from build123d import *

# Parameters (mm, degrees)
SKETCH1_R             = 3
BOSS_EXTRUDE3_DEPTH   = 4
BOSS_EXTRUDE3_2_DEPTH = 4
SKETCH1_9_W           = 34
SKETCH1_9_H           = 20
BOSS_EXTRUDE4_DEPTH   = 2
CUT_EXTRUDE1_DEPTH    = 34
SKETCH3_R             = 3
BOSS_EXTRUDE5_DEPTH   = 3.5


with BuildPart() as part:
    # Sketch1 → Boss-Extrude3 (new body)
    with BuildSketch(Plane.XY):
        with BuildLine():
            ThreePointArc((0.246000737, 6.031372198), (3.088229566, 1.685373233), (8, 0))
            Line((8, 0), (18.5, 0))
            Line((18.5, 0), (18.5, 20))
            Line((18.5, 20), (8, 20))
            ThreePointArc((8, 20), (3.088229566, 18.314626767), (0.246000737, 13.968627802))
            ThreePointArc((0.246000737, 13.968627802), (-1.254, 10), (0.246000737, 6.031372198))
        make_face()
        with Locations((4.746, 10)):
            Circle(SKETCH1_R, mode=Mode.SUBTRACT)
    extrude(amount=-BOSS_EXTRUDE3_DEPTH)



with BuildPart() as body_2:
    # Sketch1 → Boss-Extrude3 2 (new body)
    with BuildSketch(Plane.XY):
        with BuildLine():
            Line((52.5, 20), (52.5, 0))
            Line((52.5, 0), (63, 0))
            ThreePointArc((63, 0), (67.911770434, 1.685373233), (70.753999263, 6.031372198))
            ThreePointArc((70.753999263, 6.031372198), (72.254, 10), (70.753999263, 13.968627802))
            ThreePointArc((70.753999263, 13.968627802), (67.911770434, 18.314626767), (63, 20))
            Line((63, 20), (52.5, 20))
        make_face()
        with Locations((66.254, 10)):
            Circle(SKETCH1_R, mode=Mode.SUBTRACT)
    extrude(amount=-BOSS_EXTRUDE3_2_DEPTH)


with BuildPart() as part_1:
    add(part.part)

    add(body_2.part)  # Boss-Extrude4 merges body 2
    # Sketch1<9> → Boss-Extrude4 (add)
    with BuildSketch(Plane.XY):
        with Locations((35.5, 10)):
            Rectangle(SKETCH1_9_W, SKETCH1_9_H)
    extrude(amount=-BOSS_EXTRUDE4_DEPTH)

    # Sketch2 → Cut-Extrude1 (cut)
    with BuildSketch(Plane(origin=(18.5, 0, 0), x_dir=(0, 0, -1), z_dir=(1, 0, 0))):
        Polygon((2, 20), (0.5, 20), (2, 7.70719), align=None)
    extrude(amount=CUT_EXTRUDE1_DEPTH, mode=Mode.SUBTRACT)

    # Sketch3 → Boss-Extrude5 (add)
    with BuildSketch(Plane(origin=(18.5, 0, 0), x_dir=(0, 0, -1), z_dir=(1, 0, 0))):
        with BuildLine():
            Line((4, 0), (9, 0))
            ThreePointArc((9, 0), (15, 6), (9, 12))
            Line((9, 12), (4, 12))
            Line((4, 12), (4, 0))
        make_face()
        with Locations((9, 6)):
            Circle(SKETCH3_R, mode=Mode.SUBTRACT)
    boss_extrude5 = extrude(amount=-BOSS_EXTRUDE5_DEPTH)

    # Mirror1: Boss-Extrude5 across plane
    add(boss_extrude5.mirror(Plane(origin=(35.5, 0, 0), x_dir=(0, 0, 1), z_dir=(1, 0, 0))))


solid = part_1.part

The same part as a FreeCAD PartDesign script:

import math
import FreeCAD as App
import Part
import Sketcher

V = App.Vector
Q = App.Units.Quantity

doc = App.newDocument("Part")
params = doc.addObject("Spreadsheet::Sheet", "Params")
for row, (alias, value) in enumerate([
    ("sketch1_diameter", "6 mm"),
    ("sketch1_radius", "8 mm"),
    ("sketch1_radius2", "6 mm"),
    ("sketch1_height", "20 mm"),
    ("sketch1_width", "10.5 mm"),
    ("pad1_length", "4 mm"),
    ("sketch2_diameter", "6 mm"),
    ("sketch2_radius", "8 mm"),
    ("sketch2_radius2", "6 mm"),
    ("sketch2_height", "20 mm"),
    ("sketch2_width", "10.5 mm"),
    ("pad2_length", "4 mm"),
    ("sketch3_width", "34 mm"),
    ("sketch3_height", "20 mm"),
    ("pad3_length", "2 mm"),
    ("sketch4_height", "1.5 mm"),
    ("pocket1_length", "34 mm"),
    ("sketch5_diameter", "6 mm"),
    ("sketch5_radius", "6 mm"),
    ("sketch5_height", "5 mm"),
    ("pad4_length", "3.5 mm"),
], start=1):
    params.set(f"A{row}", alias)
    params.set(f"B{row}", "=" + value)
    params.setAlias(f"B{row}", alias)

body = doc.addObject("PartDesign::Body", "Body")

# Sketch on XY plane
sketch1 = doc.addObject("Sketcher::SketchObject", "Sketch")
body.addObject(sketch1)
sketch1.AttachmentSupport = (doc.XY_Plane, [""])
sketch1.MapMode = "FlatFace"
sketch1.addGeometry([
    Part.ArcOfCircle(Part.Circle(V(8, 8, 0), V(0, 0, 1), 8), math.radians(-166), math.radians(-90)),  # 0
    Part.LineSegment(V(8, 0, 0), V(18.5, 0, 0)),  # 1
    Part.LineSegment(V(18.5, 0, 0), V(18.5, 20, 0)),  # 2
    Part.LineSegment(V(18.5, 20, 0), V(8, 20, 0)),  # 3
    Part.ArcOfCircle(Part.Circle(V(8, 12, 0), V(0, 0, 1), 8), math.radians(90), math.radians(166)),  # 4
    Part.ArcOfCircle(Part.Circle(V(4.7, 10, 0), V(0, 0, 1), 6), math.radians(139), math.radians(221)),  # 5
    Part.Circle(V(4.7, 10, 0), V(0, 0, 1), 3),  # 6
], False)
sketch1.addConstraint([
    Sketcher.Constraint("Tangent", 0, 2, 1, 1),
    Sketcher.Constraint("Coincident", 1, 2, 2, 1),
    Sketcher.Constraint("Coincident", 2, 2, 3, 1),
    Sketcher.Constraint("Tangent", 3, 2, 4, 1),
    Sketcher.Constraint("Coincident", 4, 2, 5, 1),
    Sketcher.Constraint("Coincident", 5, 2, 0, 1),
    Sketcher.Constraint("Horizontal", 1),
    Sketcher.Constraint("Vertical", 2),
    Sketcher.Constraint("Horizontal", 3),
    Sketcher.Constraint("Coincident", 6, 3, 5, 3),
    Sketcher.Constraint("Equal", 0, 4),
    Sketcher.Constraint("PointOnObject", 0, 2, -1),
    Sketcher.Constraint("Vertical", 0, 3, 4, 3),
    Sketcher.Constraint("Vertical", 4, 2, 5, 2),
    Sketcher.Constraint("Diameter", 6, Q("6 mm")),
    Sketcher.Constraint("Radius", 0, Q("8 mm")),
    Sketcher.Constraint("Radius", 5, Q("6 mm")),
    Sketcher.Constraint("DistanceY", 2, 1, 2, 2, Q("20 mm")),
    Sketcher.Constraint("DistanceX", 1, 1, 1, 2, Q("10.5 mm")),
    Sketcher.Constraint("DistanceX", -1, 1, 0, 3, Q("8 mm")),
    Sketcher.Constraint("DistanceX", 4, 2, 5, 3, Q("4.499999 mm")),
])
sketch1.setExpression("Constraints[14]", "Params.sketch1_diameter")
sketch1.setExpression("Constraints[15]", "Params.sketch1_radius")
sketch1.setExpression("Constraints[16]", "Params.sketch1_radius2")
sketch1.setExpression("Constraints[17]", "Params.sketch1_height")
sketch1.setExpression("Constraints[18]", "Params.sketch1_width")
pad1 = doc.addObject("PartDesign::Pad", "Pad")
body.addObject(pad1)
pad1.Profile = sketch1
pad1.setExpression("Length", "Params.pad1_length")
pad1.Reversed = True
body2 = doc.addObject("PartDesign::Body", "Body001")

# Sketch on XY plane
sketch2 = doc.addObject("Sketcher::SketchObject", "Sketch001")
body2.addObject(sketch2)
sketch2.AttachmentSupport = (doc.getObject("XY_Plane001"), [""])
sketch2.MapMode = "FlatFace"
sketch2.addGeometry([
    Part.LineSegment(V(52.5, 20, 0), V(52.5, 0, 0)),  # 0
    Part.LineSegment(V(52.5, 0, 0), V(63, 0, 0)),  # 1
    Part.ArcOfCircle(Part.Circle(V(63, 8, 0), V(0, 0, 1), 8), math.radians(-90), math.radians(-14)),  # 2
    Part.ArcOfCircle(Part.Circle(V(66.3, 10, 0), V(0, 0, 1), 6), math.radians(-41), math.radians(41)),  # 3
    Part.ArcOfCircle(Part.Circle(V(63, 12, 0), V(0, 0, 1), 8), math.radians(14), math.radians(90)),  # 4
    Part.LineSegment(V(63, 20, 0), V(52.5, 20, 0)),  # 5
    Part.Circle(V(66.3, 10, 0), V(0, 0, 1), 3),  # 6
], False)
sketch2.addConstraint([
    Sketcher.Constraint("Coincident", 0, 2, 1, 1),
    Sketcher.Constraint("Tangent", 1, 2, 2, 1),
    Sketcher.Constraint("Coincident", 2, 2, 3, 1),
    Sketcher.Constraint("Coincident", 3, 2, 4, 1),
    Sketcher.Constraint("Tangent", 4, 2, 5, 1),
    Sketcher.Constraint("Coincident", 5, 2, 0, 1),
    Sketcher.Constraint("Vertical", 0),
    Sketcher.Constraint("Horizontal", 1),
    Sketcher.Constraint("Horizontal", 5),
    Sketcher.Constraint("Coincident", 6, 3, 3, 3),
    Sketcher.Constraint("Equal", 2, 4),
    Sketcher.Constraint("PointOnObject", 0, 2, -1),
    Sketcher.Constraint("Vertical", 2, 3, 4, 3),
    Sketcher.Constraint("Vertical", 2, 2, 3, 2),
    Sketcher.Constraint("Diameter", 6, Q("6 mm")),
    Sketcher.Constraint("Radius", 2, Q("8 mm")),
    Sketcher.Constraint("Radius", 3, Q("6 mm")),
    Sketcher.Constraint("DistanceY", 0, 2, 0, 1, Q("20 mm")),
    Sketcher.Constraint("DistanceX", 1, 1, 1, 2, Q("10.5 mm")),
    Sketcher.Constraint("DistanceX", -1, 1, 2, 3, Q("63 mm")),
    Sketcher.Constraint("DistanceX", 3, 3, 2, 2, Q("4.499999 mm")),
])
sketch2.setExpression("Constraints[14]", "Params.sketch2_diameter")
sketch2.setExpression("Constraints[15]", "Params.sketch2_radius")
sketch2.setExpression("Constraints[16]", "Params.sketch2_radius2")
sketch2.setExpression("Constraints[17]", "Params.sketch2_height")
sketch2.setExpression("Constraints[18]", "Params.sketch2_width")
pad2 = doc.addObject("PartDesign::Pad", "Pad001")
body2.addObject(pad2)
pad2.Profile = sketch2
pad2.setExpression("Length", "Params.pad2_length")
pad2.Reversed = True
body.AllowCompound = True
doc.recompute()

boolean = doc.addObject("PartDesign::Boolean", "Boolean")
body.addObject(boolean)
boolean.Type = "Fuse"
boolean.addObjects([body2])

# Sketch on XY plane
sketch3 = doc.addObject("Sketcher::SketchObject", "Sketch002")
body.addObject(sketch3)
sketch3.AttachmentSupport = (doc.XY_Plane, [""])
sketch3.MapMode = "FlatFace"
sketch3.addGeometry([
    Part.LineSegment(V(18, 20, 0), V(18, 0, 0)),
    Part.LineSegment(V(18, 0, 0), V(52, 0, 0)),
    Part.LineSegment(V(52, 0, 0), V(52, 20, 0)),
    Part.LineSegment(V(52, 20, 0), V(18, 20, 0)),
], False)
sketch3.addConstraint([
    Sketcher.Constraint("Coincident", 0, 2, 1, 1),
    Sketcher.Constraint("Coincident", 1, 2, 2, 1),
    Sketcher.Constraint("Coincident", 2, 2, 3, 1),
    Sketcher.Constraint("Coincident", 3, 2, 0, 1),
    Sketcher.Constraint("Vertical", 0),
    Sketcher.Constraint("Horizontal", 1),
    Sketcher.Constraint("Vertical", 2),
    Sketcher.Constraint("Horizontal", 3),
    Sketcher.Constraint("PointOnObject", 0, 2, -1),
    Sketcher.Constraint("DistanceX", 1, 1, 1, 2, Q("34 mm")),
    Sketcher.Constraint("DistanceY", 0, 2, 0, 1, Q("20 mm")),
    Sketcher.Constraint("DistanceX", -1, 1, 0, 2, Q("18.5 mm")),
])
sketch3.setExpression("Constraints[9]", "Params.sketch3_width")
sketch3.setExpression("Constraints[10]", "Params.sketch3_height")
pad3 = doc.addObject("PartDesign::Pad", "Pad002")
body.addObject(pad3)
pad3.Profile = sketch3
pad3.setExpression("Length", "Params.pad3_length")
pad3.Reversed = True

# Sketch on YZ plane
sketch4 = doc.addObject("Sketcher::SketchObject", "Sketch003")
body.addObject(sketch4)
sketch4.AttachmentSupport = (doc.YZ_Plane, [""])
sketch4.MapMode = "FlatFace"
sketch4.AttachmentOffset = App.Placement(V(0, 0, 18.5), App.Rotation())
sketch4.addGeometry([
    Part.LineSegment(V(20, -2, 0), V(20, -0.5, 0)),
    Part.LineSegment(V(20, -0.5, 0), V(7.7, -2, 0)),
    Part.LineSegment(V(7.7, -2, 0), V(20, -2, 0)),
], False)
sketch4.addConstraint([
    Sketcher.Constraint("Coincident", 0, 2, 1, 1),
    Sketcher.Constraint("Coincident", 1, 2, 2, 1),
    Sketcher.Constraint("Coincident", 2, 2, 0, 1),
    Sketcher.Constraint("Vertical", 0),
    Sketcher.Constraint("Horizontal", 2),
    Sketcher.Constraint("DistanceY", 0, 1, 0, 2, Q("1.5 mm")),
    Sketcher.Constraint("DistanceX", -1, 1, 0, 2, Q("20 mm")),
    Sketcher.Constraint("DistanceY", 1, 2, -1, 1, Q("2 mm")),
    Sketcher.Constraint("DistanceX", 2, 1, 2, 2, Q("12.29281 mm")),
])
sketch4.setExpression("Constraints[5]", "Params.sketch4_height")
pocket1 = doc.addObject("PartDesign::Pocket", "Pocket")
body.addObject(pocket1)
pocket1.Profile = sketch4
pocket1.setExpression("Length", "Params.pocket1_length")
pocket1.Reversed = True

# Sketch on YZ plane
sketch5 = doc.addObject("Sketcher::SketchObject", "Sketch004")
body.addObject(sketch5)
sketch5.AttachmentSupport = (doc.YZ_Plane, [""])
sketch5.MapMode = "FlatFace"
sketch5.AttachmentOffset = App.Placement(V(0, 0, 18.5), App.Rotation())
sketch5.addGeometry([
    Part.LineSegment(V(0, -4, 0), V(0, -9, 0)),  # 0
    Part.ArcOfCircle(Part.Circle(V(6, -9, 0), V(0, 0, 1), 6), math.radians(180), math.radians(360)),  # 1
    Part.LineSegment(V(12, -9, 0), V(12, -4, 0)),  # 2
    Part.LineSegment(V(12, -4, 0), V(0, -4, 0)),  # 3
    Part.Circle(V(6, -9, 0), V(0, 0, 1), 3),  # 4
], False)
sketch5.addConstraint([
    Sketcher.Constraint("Tangent", 0, 2, 1, 1),
    Sketcher.Constraint("Tangent", 1, 2, 2, 1),
    Sketcher.Constraint("Coincident", 2, 2, 3, 1),
    Sketcher.Constraint("Coincident", 3, 2, 0, 1),
    Sketcher.Constraint("Vertical", 0),
    Sketcher.Constraint("Vertical", 2),
    Sketcher.Constraint("Horizontal", 3),
    Sketcher.Constraint("Coincident", 4, 3, 1, 3),
    Sketcher.Constraint("PointOnObject", 0, 2, -2),
    Sketcher.Constraint("Diameter", 4, Q("6 mm")),
    Sketcher.Constraint("Radius", 1, Q("6 mm")),
    Sketcher.Constraint("DistanceY", 0, 2, 0, 1, Q("5 mm")),
    Sketcher.Constraint("DistanceY", 1, 3, -1, 1, Q("9 mm")),
])
sketch5.setExpression("Constraints[9]", "Params.sketch5_diameter")
sketch5.setExpression("Constraints[10]", "Params.sketch5_radius")
sketch5.setExpression("Constraints[11]", "Params.sketch5_height")
pad4 = doc.addObject("PartDesign::Pad", "Pad003")
body.addObject(pad4)
pad4.Profile = sketch5
pad4.setExpression("Length", "Params.pad4_length")
pad4.Reversed = True
doc.recompute()

datumplane = doc.addObject("PartDesign::Plane", "DatumPlane")
body.addObject(datumplane)
datumplane.AttachmentSupport = (doc.YZ_Plane, [""])
datumplane.MapMode = "FlatFace"
datumplane.AttachmentOffset = App.Placement(V(0, 0, 35.5), App.Rotation())
mirrored = doc.addObject("PartDesign::Mirrored", "Mirrored")
body.addObject(mirrored)
mirrored.Originals = [pad4]
mirrored.MirrorPlane = (datumplane, [""])
body.Tip = mirrored

doc.recompute()
